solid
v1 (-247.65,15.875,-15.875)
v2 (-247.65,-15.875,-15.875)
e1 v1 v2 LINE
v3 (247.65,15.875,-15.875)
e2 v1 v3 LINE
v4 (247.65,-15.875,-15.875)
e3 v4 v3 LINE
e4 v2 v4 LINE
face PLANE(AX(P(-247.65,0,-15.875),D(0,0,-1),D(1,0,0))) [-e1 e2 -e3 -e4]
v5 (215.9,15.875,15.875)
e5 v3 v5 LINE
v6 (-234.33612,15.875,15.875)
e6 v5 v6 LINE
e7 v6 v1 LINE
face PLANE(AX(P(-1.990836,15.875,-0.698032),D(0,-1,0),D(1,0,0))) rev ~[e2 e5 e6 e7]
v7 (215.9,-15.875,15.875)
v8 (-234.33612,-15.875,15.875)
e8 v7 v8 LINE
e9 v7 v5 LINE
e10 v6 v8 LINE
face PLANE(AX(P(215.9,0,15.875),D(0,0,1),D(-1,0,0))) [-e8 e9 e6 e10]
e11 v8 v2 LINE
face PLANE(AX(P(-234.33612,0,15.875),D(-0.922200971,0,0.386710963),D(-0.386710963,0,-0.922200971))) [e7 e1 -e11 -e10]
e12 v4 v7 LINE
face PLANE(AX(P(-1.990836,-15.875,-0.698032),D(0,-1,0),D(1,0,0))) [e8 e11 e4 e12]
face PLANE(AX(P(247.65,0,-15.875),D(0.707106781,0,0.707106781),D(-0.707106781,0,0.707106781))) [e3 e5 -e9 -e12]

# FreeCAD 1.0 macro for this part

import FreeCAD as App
import Part
import Sketcher

V = App.Vector
Q = App.Units.Quantity

doc = App.newDocument("Part")
body = doc.addObject("PartDesign::Body", "Body")

# Sketch on XZ plane
sketch1 = doc.addObject("Sketcher::SketchObject", "Sketch")
body.addObject(sketch1)
sketch1.AttachmentSupport = (doc.XZ_Plane, [""])
sketch1.MapMode = "FlatFace"
sketch1.addGeometry([
    Part.LineSegment(V(216, 16, 0), V(-234, 16, 0)),
    Part.LineSegment(V(-234, 16, 0), V(-248, -16, 0)),
    Part.LineSegment(V(-248, -16, 0), V(248, -16, 0)),
    Part.LineSegment(V(248, -16, 0), V(216, 16, 0)),
], False)
sketch1.addConstraint([
    Sketcher.Constraint("Coincident", 0, 2, 1, 1),
    Sketcher.Constraint("Coincident", 1, 2, 2, 1),
    Sketcher.Constraint("Coincident", 2, 2, 3, 1),
    Sketcher.Constraint("Coincident", 3, 2, 0, 1),
    Sketcher.Constraint("Horizontal", 0),
    Sketcher.Constraint("Horizontal", 2),
    Sketcher.Constraint("DistanceX", 2, 1, 2, 2, Q("19.5 in")),
    Sketcher.Constraint("Angle", 3, Q("135 deg")),
    Sketcher.Constraint("DistanceX", -1, 1, 3, 2, Q("8.5 in")),
    Sketcher.Constraint("DistanceX", 1, 2, -1, 1, Q("9.75 in")),
    Sketcher.Constraint("Angle", 1, Q("-112.75 deg")),
    Sketcher.Constraint("DistanceY", -1, 1, 0, 2, Q("0.625 in")),
])
pad1 = doc.addObject("PartDesign::Pad", "Pad")
body.addObject(pad1)
pad1.Profile = sketch1
pad1.Length = Q("1.25 in")
pad1.Midplane = True

doc.recompute()
